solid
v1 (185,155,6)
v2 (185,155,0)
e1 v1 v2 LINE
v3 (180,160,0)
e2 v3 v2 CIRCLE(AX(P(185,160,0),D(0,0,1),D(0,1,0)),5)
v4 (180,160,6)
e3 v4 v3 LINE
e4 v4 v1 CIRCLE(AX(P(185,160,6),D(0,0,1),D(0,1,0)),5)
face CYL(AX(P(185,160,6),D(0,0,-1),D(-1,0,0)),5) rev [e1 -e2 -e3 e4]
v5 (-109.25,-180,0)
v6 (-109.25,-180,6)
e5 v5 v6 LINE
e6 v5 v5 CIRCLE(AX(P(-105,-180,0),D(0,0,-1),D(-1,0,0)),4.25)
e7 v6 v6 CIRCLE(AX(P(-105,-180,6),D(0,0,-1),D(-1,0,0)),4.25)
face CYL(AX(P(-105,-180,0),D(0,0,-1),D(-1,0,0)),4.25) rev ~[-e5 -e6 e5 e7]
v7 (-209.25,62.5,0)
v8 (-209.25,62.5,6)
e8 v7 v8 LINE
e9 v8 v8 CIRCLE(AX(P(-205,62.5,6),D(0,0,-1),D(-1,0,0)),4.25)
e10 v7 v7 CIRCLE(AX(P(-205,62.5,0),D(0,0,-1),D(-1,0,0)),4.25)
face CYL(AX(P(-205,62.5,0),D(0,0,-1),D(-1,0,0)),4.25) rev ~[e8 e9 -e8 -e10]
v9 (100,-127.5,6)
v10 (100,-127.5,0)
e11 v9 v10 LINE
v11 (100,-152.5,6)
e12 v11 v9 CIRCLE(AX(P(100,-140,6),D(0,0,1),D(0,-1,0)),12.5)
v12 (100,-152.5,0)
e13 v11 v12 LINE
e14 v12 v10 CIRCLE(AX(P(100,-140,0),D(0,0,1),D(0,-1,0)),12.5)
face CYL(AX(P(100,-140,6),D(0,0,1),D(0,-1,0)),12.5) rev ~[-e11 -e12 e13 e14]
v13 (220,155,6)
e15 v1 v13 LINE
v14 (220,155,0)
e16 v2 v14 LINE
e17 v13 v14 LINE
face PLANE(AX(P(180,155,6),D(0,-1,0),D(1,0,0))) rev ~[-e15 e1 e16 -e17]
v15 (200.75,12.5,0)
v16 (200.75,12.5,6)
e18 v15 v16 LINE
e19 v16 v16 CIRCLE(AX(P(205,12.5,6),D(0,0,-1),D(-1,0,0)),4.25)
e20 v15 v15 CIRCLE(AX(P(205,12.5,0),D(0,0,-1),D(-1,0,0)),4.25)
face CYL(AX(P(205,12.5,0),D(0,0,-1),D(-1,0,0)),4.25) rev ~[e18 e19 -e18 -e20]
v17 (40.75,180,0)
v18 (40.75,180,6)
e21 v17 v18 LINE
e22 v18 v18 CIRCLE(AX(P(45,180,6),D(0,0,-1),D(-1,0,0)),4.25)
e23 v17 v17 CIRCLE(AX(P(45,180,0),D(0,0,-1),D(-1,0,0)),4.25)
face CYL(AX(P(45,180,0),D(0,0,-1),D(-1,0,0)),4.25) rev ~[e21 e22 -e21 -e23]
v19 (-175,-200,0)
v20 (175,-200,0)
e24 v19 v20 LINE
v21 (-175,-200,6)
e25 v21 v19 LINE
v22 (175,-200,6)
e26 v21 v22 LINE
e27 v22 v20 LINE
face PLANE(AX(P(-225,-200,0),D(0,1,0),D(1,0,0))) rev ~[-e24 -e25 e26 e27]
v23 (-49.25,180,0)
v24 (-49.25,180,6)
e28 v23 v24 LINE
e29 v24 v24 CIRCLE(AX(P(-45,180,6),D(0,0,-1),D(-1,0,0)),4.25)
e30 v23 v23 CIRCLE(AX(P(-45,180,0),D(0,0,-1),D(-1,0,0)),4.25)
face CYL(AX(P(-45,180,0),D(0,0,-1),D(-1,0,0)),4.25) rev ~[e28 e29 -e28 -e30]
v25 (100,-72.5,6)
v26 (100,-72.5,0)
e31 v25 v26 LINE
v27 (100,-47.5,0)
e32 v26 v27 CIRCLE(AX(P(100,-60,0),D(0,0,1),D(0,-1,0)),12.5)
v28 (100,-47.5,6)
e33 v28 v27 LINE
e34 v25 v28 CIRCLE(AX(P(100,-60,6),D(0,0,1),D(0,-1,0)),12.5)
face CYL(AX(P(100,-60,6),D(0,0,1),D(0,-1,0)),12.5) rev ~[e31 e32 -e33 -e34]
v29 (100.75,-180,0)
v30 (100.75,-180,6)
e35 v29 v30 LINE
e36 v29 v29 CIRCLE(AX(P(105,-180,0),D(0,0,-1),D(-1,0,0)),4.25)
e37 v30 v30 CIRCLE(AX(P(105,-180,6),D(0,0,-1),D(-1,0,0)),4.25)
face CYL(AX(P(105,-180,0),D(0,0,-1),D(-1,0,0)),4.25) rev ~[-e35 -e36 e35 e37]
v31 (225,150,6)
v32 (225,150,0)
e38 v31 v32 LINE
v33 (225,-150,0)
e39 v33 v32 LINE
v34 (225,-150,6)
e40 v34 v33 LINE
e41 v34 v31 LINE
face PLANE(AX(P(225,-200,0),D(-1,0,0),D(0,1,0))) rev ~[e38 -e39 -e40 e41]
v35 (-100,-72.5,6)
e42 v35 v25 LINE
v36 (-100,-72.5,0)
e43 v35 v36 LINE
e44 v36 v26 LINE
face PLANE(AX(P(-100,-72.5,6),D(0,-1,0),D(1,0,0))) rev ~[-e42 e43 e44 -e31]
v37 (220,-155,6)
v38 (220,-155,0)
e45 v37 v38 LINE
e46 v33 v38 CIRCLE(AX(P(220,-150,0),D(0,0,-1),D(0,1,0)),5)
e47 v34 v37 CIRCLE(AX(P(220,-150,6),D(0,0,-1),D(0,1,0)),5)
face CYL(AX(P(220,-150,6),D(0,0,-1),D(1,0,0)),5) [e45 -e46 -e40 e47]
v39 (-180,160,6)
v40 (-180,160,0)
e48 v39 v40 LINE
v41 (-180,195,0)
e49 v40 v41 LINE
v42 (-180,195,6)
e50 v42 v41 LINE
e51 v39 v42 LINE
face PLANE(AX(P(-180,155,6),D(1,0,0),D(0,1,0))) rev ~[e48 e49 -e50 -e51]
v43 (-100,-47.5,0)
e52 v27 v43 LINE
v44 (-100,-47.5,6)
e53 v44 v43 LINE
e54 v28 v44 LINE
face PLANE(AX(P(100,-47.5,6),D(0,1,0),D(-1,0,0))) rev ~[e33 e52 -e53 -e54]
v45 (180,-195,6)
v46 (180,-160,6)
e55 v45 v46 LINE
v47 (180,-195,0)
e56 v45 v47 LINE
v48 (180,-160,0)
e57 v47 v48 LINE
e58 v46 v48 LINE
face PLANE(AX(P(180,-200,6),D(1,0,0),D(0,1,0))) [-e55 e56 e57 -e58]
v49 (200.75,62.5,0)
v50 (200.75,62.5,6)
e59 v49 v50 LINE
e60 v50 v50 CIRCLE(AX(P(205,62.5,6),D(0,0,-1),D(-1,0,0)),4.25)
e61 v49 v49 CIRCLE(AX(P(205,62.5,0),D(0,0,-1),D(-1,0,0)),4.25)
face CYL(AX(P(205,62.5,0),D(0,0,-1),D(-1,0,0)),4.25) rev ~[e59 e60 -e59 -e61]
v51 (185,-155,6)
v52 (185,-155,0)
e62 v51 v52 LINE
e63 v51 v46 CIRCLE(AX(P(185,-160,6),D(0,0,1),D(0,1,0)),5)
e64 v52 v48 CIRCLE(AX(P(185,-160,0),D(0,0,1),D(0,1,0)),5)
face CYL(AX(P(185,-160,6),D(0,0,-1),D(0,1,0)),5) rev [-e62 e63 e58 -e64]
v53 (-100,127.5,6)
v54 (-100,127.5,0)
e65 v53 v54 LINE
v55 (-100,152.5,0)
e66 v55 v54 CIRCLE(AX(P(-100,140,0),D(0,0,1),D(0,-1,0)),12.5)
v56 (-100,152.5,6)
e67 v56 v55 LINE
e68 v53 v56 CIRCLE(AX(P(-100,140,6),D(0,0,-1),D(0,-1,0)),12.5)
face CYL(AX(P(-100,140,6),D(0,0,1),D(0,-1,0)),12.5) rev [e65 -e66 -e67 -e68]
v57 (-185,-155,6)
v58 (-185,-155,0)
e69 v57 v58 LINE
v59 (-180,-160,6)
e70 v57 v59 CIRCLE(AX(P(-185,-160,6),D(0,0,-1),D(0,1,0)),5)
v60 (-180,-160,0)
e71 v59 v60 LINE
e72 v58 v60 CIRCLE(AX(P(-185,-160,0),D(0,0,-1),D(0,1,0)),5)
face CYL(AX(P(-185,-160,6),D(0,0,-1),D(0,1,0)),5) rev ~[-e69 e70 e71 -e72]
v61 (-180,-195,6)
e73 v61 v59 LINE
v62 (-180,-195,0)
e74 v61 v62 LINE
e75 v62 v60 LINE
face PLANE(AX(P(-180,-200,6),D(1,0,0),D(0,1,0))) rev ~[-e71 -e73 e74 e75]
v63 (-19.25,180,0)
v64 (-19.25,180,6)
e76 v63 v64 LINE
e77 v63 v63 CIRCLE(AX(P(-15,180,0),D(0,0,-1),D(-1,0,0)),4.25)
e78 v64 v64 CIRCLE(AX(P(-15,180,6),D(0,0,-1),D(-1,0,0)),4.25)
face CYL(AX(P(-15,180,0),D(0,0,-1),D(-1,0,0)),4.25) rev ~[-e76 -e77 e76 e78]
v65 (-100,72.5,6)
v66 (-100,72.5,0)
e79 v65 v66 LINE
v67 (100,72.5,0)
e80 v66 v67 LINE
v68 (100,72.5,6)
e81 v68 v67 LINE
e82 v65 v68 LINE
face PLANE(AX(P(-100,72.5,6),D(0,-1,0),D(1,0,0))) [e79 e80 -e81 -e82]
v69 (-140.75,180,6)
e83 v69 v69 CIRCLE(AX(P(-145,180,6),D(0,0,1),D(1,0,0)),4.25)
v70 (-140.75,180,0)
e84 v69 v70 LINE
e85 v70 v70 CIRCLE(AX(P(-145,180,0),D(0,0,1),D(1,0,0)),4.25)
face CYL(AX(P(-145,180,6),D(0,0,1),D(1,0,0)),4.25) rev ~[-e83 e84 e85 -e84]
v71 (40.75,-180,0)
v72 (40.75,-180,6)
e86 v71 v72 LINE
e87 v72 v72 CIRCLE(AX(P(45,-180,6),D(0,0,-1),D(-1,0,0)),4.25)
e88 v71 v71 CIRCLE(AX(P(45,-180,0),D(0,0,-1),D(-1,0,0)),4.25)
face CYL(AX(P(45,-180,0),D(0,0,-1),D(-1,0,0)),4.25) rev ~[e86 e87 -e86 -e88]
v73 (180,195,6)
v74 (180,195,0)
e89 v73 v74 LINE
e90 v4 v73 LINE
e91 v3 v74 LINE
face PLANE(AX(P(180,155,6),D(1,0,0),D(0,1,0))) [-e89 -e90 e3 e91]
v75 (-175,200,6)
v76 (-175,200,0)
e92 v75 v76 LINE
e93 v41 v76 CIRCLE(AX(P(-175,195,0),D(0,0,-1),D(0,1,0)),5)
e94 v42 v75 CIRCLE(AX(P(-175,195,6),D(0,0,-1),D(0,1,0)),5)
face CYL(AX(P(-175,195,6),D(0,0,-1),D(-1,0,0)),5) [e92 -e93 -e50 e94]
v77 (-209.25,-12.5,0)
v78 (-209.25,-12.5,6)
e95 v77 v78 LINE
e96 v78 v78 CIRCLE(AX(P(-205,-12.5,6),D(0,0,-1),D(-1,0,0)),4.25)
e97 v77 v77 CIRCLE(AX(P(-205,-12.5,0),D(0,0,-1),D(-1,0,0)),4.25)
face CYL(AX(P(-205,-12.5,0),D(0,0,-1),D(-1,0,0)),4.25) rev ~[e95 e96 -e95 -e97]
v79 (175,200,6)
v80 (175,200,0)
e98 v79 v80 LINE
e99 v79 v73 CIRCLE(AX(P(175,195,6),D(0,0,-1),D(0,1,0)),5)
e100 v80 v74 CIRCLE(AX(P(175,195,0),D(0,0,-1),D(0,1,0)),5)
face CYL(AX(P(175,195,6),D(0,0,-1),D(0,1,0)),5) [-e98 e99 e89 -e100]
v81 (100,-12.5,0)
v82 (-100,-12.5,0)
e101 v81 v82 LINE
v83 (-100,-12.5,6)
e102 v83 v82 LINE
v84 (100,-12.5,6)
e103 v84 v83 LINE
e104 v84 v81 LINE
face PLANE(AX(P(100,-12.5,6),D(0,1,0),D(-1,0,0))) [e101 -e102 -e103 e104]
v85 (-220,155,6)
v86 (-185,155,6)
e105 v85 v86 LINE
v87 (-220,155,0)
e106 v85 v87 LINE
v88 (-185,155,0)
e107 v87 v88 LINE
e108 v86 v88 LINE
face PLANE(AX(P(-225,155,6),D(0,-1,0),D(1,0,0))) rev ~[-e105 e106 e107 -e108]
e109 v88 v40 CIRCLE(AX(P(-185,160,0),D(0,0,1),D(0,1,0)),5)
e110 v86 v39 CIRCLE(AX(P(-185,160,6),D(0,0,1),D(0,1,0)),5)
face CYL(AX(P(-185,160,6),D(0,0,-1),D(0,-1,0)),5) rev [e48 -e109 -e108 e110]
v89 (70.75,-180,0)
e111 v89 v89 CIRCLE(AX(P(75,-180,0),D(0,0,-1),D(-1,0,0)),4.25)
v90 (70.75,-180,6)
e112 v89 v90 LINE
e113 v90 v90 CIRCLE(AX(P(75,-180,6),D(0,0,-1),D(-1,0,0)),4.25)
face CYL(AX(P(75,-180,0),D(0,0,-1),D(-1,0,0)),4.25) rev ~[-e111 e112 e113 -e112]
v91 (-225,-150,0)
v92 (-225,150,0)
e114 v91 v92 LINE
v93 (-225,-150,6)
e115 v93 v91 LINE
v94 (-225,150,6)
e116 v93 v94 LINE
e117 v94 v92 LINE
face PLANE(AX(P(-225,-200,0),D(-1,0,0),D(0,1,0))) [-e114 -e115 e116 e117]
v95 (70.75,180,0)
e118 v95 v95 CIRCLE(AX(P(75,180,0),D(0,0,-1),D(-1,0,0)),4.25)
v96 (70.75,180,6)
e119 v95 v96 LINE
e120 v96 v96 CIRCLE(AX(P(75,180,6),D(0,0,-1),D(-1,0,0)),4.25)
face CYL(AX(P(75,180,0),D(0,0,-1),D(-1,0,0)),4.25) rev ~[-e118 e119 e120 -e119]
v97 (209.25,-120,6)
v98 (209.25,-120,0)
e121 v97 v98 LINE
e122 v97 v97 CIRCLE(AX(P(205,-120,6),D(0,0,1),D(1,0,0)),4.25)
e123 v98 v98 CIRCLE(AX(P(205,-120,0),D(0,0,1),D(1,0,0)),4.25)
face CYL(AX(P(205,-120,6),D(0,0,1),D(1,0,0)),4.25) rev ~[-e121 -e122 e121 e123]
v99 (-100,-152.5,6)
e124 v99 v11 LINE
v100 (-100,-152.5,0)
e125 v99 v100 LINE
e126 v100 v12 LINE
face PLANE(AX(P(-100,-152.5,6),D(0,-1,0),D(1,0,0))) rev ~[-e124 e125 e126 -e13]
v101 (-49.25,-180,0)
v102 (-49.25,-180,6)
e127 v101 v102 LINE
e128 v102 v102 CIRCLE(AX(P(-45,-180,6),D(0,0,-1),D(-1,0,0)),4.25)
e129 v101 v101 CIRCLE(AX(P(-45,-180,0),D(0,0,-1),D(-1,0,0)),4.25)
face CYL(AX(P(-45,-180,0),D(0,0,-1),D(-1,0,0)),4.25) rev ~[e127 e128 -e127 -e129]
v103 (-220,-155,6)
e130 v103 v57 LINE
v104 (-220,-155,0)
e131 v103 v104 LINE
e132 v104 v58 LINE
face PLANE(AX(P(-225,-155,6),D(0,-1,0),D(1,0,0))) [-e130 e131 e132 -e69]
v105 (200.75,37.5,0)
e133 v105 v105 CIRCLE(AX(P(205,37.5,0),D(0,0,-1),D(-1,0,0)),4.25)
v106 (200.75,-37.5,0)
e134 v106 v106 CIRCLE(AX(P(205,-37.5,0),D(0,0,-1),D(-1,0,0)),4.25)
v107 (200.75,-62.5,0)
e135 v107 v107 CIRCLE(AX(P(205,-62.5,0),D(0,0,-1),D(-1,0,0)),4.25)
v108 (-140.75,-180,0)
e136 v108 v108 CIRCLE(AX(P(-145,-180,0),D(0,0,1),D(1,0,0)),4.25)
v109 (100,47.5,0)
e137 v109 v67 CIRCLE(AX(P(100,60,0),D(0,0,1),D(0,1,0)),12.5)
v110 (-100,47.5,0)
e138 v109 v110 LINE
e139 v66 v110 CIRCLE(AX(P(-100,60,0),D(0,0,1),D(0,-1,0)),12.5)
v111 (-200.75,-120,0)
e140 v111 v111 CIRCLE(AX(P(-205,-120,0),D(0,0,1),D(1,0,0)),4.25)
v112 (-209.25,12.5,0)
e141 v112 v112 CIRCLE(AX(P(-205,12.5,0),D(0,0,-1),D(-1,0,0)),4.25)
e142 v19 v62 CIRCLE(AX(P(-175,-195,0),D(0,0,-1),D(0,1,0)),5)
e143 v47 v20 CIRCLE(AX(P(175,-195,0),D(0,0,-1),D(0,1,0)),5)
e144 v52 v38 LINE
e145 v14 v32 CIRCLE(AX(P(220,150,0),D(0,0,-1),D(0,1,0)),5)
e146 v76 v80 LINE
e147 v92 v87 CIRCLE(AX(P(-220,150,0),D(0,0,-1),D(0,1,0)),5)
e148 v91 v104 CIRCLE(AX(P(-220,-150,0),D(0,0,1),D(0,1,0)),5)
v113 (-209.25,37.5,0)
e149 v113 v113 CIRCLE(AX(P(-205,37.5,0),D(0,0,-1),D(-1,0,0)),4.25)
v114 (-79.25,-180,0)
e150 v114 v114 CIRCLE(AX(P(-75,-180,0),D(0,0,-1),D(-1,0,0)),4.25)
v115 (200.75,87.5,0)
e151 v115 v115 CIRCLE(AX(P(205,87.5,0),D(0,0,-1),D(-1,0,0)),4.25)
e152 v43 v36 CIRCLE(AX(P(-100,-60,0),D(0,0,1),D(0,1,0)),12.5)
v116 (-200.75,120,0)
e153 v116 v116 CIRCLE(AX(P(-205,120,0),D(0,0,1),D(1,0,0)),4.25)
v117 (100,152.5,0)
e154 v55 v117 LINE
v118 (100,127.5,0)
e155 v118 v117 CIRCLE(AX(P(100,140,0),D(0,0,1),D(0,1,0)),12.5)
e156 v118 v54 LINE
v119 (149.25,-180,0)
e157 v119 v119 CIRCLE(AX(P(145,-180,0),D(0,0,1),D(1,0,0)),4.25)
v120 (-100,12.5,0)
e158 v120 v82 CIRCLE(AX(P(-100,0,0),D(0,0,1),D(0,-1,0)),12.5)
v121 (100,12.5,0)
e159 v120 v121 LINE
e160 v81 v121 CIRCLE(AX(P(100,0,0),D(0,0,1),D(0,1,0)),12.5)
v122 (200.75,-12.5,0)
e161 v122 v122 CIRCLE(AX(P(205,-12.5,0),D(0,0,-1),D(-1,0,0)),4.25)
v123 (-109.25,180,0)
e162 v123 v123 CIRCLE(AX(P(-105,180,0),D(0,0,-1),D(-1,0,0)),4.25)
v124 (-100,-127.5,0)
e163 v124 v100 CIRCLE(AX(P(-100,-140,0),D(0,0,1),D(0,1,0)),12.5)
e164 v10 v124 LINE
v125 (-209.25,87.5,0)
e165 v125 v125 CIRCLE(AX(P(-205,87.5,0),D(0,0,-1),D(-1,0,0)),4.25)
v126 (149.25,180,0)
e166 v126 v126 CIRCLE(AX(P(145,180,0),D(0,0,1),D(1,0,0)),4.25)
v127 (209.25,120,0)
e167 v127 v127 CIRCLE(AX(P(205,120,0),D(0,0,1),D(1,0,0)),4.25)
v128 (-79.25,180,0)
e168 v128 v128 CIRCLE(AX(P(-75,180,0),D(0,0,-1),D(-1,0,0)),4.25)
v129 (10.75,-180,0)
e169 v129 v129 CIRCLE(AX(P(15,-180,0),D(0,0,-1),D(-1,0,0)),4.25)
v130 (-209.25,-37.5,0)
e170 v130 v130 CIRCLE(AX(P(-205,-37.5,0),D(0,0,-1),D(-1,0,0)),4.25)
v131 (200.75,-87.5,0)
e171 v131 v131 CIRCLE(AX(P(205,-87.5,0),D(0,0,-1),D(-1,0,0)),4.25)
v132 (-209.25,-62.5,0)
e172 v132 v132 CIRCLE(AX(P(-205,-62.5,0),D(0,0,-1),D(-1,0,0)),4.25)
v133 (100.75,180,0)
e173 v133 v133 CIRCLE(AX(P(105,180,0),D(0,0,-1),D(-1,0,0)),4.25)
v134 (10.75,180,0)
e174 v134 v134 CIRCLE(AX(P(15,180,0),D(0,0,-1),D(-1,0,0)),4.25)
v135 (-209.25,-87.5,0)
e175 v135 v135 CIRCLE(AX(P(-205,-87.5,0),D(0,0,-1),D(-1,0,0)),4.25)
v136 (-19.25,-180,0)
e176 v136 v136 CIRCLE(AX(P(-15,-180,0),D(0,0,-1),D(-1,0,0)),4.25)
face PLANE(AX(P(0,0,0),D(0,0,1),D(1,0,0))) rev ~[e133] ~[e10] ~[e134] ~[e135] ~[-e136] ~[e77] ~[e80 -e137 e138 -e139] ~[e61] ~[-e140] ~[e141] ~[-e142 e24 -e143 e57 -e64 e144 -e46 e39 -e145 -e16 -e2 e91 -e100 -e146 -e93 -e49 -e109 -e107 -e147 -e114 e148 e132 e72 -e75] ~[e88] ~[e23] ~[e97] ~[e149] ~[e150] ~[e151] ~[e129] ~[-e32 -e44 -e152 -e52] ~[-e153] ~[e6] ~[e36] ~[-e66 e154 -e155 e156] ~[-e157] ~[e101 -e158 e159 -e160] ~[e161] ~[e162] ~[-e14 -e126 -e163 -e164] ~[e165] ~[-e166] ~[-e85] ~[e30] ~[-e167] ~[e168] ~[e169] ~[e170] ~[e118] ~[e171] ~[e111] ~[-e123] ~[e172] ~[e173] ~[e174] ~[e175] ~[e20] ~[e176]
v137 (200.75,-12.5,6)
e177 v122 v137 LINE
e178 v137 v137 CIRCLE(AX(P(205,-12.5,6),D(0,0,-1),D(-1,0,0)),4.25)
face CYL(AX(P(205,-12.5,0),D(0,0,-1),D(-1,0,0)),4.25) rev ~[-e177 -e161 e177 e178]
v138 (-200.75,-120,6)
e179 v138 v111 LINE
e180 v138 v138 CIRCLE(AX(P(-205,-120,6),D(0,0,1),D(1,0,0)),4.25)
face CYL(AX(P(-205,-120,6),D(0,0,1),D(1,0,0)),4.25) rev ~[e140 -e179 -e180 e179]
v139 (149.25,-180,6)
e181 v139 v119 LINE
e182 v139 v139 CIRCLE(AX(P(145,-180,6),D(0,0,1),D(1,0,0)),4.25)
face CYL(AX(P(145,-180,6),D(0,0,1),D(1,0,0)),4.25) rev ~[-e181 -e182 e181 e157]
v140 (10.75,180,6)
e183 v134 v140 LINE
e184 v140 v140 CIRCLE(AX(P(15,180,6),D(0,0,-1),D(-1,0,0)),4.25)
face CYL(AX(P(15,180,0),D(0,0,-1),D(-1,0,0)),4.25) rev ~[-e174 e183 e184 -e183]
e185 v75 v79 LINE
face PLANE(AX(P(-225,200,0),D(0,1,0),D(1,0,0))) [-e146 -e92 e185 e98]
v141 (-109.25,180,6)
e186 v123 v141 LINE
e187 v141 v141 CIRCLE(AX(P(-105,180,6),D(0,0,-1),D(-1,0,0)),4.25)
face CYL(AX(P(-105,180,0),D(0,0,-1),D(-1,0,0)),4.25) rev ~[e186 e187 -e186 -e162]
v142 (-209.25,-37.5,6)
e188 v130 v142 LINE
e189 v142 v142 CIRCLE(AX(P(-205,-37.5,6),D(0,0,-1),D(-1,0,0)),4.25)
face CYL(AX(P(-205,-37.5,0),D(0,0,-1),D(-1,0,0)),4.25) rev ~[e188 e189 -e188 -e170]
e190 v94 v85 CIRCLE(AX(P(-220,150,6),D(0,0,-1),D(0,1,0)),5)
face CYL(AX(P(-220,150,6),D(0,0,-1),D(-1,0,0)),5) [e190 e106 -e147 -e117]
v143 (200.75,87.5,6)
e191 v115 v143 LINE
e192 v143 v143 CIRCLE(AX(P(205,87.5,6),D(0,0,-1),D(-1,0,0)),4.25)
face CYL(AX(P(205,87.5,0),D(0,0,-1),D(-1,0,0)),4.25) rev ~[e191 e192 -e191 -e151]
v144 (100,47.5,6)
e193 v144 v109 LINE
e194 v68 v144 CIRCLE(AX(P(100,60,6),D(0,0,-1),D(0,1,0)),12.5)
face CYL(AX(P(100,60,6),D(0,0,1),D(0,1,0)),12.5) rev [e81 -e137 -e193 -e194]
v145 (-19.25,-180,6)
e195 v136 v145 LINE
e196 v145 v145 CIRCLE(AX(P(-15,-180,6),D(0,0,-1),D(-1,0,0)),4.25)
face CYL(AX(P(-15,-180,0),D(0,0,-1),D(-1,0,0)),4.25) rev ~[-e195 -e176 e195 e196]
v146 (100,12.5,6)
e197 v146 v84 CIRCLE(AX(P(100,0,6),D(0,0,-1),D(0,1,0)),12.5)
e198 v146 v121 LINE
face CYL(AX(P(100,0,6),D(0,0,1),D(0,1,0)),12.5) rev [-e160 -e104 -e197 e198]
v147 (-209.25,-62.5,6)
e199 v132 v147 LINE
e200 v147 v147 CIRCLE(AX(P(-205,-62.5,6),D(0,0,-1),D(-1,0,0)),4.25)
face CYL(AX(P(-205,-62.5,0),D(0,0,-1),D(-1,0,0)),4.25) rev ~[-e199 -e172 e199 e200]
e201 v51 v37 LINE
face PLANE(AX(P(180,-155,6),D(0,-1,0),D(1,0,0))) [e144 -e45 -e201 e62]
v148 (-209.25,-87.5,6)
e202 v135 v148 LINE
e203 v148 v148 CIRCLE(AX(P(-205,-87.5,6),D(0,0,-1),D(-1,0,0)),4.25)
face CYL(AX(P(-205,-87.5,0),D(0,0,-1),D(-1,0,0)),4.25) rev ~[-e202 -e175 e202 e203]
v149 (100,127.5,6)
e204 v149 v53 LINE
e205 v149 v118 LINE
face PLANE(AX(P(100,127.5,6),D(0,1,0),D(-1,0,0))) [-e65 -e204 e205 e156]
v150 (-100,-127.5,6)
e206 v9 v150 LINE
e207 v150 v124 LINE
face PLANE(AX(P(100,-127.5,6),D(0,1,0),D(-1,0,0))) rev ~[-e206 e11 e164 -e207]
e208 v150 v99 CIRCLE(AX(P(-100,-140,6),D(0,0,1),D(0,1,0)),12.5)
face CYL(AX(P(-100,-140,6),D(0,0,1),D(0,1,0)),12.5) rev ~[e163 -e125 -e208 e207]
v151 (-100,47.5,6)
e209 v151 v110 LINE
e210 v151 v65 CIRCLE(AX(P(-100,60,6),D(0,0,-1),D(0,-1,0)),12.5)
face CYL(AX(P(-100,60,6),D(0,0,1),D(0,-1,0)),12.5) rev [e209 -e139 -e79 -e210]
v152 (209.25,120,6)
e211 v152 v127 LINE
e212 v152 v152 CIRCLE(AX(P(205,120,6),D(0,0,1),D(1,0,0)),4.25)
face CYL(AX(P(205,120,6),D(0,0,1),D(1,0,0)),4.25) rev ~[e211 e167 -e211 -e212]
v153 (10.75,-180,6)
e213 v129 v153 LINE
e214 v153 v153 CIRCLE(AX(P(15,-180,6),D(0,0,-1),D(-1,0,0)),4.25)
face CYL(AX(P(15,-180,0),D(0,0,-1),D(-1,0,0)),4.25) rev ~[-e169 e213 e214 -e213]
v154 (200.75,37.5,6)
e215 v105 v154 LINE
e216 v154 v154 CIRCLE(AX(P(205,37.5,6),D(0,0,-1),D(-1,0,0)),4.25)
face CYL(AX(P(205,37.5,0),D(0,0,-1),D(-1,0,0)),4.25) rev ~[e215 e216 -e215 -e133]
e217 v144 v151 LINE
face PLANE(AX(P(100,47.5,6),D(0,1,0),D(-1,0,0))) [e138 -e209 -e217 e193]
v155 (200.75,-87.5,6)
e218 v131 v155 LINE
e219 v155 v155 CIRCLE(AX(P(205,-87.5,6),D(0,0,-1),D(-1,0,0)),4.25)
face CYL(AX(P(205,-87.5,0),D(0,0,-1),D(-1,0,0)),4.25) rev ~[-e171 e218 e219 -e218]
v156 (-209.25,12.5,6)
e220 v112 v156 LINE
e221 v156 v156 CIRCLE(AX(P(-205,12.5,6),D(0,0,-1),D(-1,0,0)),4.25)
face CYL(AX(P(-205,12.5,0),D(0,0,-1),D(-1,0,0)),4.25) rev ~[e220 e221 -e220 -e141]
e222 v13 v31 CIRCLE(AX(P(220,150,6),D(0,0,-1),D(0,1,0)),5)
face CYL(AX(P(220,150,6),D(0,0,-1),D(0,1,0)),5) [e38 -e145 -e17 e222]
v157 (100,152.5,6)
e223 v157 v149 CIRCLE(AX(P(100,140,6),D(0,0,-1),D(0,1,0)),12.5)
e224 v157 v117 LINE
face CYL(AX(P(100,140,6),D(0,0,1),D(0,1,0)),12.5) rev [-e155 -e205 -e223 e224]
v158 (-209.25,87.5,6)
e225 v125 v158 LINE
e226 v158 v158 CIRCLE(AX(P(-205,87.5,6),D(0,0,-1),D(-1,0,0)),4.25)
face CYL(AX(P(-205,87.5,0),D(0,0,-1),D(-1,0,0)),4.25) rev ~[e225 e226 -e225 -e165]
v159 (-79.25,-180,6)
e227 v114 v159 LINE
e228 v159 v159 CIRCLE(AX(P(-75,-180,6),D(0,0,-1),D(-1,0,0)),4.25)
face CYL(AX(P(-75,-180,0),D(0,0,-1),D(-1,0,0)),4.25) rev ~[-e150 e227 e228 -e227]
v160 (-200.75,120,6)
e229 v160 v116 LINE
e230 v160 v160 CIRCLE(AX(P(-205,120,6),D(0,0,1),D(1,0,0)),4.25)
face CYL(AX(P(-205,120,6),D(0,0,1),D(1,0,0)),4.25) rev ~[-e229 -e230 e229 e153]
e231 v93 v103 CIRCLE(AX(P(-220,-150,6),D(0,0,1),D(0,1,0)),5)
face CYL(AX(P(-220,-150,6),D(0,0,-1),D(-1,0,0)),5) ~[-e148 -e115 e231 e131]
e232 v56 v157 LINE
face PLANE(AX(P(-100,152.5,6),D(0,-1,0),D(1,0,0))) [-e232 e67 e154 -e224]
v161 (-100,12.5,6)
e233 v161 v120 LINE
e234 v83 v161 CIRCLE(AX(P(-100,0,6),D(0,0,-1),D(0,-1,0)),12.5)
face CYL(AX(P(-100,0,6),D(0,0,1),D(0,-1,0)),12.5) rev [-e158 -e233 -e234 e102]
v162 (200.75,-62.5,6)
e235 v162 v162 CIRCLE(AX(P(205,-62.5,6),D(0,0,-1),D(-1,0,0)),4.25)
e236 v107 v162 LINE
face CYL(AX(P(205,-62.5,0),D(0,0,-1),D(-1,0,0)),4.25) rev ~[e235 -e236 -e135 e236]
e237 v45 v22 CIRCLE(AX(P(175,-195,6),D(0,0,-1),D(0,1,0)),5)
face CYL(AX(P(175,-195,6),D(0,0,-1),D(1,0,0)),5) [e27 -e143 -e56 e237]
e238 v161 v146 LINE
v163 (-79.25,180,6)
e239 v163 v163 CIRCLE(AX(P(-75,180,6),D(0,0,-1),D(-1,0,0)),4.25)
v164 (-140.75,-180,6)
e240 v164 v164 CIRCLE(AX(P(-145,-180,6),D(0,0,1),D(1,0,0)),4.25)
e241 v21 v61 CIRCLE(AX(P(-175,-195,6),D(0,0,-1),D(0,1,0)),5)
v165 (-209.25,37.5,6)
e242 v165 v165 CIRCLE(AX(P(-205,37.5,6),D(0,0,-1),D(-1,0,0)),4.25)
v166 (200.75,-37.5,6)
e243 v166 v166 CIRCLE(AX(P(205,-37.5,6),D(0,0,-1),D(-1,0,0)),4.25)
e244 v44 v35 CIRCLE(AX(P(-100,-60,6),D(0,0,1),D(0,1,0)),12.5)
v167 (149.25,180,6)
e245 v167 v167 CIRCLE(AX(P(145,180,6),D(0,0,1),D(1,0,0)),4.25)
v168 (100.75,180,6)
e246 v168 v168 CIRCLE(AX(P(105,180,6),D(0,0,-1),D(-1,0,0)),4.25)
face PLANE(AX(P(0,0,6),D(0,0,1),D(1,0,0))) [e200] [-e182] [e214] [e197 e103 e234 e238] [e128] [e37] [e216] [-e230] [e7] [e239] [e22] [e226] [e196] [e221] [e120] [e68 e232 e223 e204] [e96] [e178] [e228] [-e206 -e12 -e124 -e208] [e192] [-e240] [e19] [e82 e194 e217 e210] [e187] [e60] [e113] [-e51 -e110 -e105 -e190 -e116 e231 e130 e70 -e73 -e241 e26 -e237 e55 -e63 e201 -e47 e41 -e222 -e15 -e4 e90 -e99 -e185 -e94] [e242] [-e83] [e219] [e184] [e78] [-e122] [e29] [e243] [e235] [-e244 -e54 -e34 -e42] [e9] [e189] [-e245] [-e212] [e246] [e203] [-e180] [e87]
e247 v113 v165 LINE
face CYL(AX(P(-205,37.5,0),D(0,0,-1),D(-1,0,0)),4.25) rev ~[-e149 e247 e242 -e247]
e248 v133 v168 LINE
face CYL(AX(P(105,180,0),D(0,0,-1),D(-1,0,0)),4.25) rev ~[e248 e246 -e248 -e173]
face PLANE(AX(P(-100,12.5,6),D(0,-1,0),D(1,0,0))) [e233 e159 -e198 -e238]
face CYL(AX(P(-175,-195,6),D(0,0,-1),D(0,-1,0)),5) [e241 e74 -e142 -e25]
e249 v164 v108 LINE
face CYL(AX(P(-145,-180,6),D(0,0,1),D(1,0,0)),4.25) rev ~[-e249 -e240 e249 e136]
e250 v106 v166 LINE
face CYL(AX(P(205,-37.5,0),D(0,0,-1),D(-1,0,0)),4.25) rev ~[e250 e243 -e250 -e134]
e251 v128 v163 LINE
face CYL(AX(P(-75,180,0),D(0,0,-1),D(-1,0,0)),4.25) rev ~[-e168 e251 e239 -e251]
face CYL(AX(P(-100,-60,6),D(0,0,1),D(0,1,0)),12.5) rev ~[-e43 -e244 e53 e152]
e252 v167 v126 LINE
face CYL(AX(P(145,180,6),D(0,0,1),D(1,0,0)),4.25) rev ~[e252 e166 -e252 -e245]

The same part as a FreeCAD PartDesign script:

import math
import FreeCAD as App
import Part
import Sketcher

V = App.Vector


def edges_at(feature, points):
    """Names of the edges that pass closest to the given points."""
    edges = feature.Shape.Edges
    near = lambda p: min(range(len(edges)), key=lambda i: edges[i].distToShape(Part.Vertex(*p))[0])
    return sorted({f"Edge{near(p) + 1}" for p in points})

doc = App.newDocument("Part")
params = doc.addObject("Spreadsheet::Sheet", "Params")
for row, (alias, value) in enumerate([
    ("sketch1_width", "450 mm"),
    ("sketch1_height", "400 mm"),
    ("pad1_length", "6 mm"),
    ("sketch2_diameter", "7.5 mm"),
    ("sketch2_diameter2", "8.5 mm"),
    ("pocket1_length", "50 mm"),
    ("sketch3_radius", "12.5 mm"),
    ("sketch3_width", "200 mm"),
    ("pocket2_length", "50 mm"),
    ("sketch4_width", "45 mm"),
    ("pocket3_length", "56 mm"),
    ("fillet_radius", "5 mm"),
    ("sketch5_diameter", "8.5 mm"),
    ("pocket4_length", "90 mm"),
], start=1):
    params.set(f"A{row}", alias)
    params.set(f"B{row}", "=" + value)
    params.setAlias(f"B{row}", alias)

body = doc.addObject("PartDesign::Body", "Body")

# Sketch on XY plane
sketch1 = body.newObject("Sketcher::SketchObject", "Sketch")
sketch1.AttachmentSupport = (doc.getObject("XY_Plane"), [""])
sketch1.MapMode = "FlatFace"
sketch1.addGeometry(Part.LineSegment(V(-225, 200, 0), V(-225, -200, 0)), False)
sketch1.addGeometry(Part.LineSegment(V(-225, -200, 0), V(225, -200, 0)), False)
sketch1.addGeometry(Part.LineSegment(V(225, -200, 0), V(225, 200, 0)), False)
sketch1.addGeometry(Part.LineSegment(V(225, 200, 0), V(-225, 200, 0)), False)
sketch1.addConstraint(Sketcher.Constraint("Coincident", 0, 2, 1, 1))
sketch1.addConstraint(Sketcher.Constraint("Coincident", 1, 2, 2, 1))
sketch1.addConstraint(Sketcher.Constraint("Coincident", 2, 2, 3, 1))
sketch1.addConstraint(Sketcher.Constraint("Coincident", 3, 2, 0, 1))
sketch1.addConstraint(Sketcher.Constraint("Vertical", 0))
sketch1.addConstraint(Sketcher.Constraint("Horizontal", 1))
sketch1.addConstraint(Sketcher.Constraint("Vertical", 2))
sketch1.addConstraint(Sketcher.Constraint("Horizontal", 3))
sketch1.addConstraint(Sketcher.Constraint("Symmetric", 0, 2, 2, 2, -1, 1))
sketch1.addConstraint(Sketcher.Constraint("DistanceX", 1, 1, 1, 2, 450.0))
sketch1.addConstraint(Sketcher.Constraint("DistanceY", 0, 2, 0, 1, 400.0))
sketch1.setExpression("Constraints[9]", "Params.sketch1_width")
sketch1.setExpression("Constraints[10]", "Params.sketch1_height")
pad1 = body.newObject("PartDesign::Pad", "Pad")
pad1.Profile = sketch1
pad1.setExpression("Length", "Params.pad1_length")

# Sketch on XY plane
sketch2 = body.newObject("Sketcher::SketchObject", "Sketch001")
sketch2.AttachmentSupport = (doc.getObject("XY_Plane"), [""])
sketch2.MapMode = "FlatFace"
sketch2.AttachmentOffset = App.Placement(V(0, 0, 6), App.Rotation())
sketch2.addGeometry(Part.Circle(V(205, -180, 0), V(0, 0, 1), 3.75), False)
sketch2.addGeometry(Part.Circle(V(205, -120, 0), V(0, 0, 1), 4.25), False)
sketch2.addGeometry(Part.Circle(V(145, -180, 0), V(0, 0, 1), 4.25), False)
sketch2.addGeometry(Part.Circle(V(145, 180, 0), V(0, 0, 1), 4.25), False)
sketch2.addGeometry(Part.Circle(V(205, 120, 0), V(0, 0, 1), 4.25), False)
sketch2.addGeometry(Part.Circle(V(205, 180, 0), V(0, 0, 1), 3.75), False)
sketch2.addGeometry(Part.Circle(V(-205, 180, 0), V(0, 0, 1), 3.75), False)
sketch2.addGeometry(Part.Circle(V(-205, 120, 0), V(0, 0, 1), 4.25), False)
sketch2.addGeometry(Part.Circle(V(-145, 180, 0), V(0, 0, 1), 4.25), False)
sketch2.addGeometry(Part.Circle(V(-145, -180, 0), V(0, 0, 1), 4.25), False)
sketch2.addGeometry(Part.Circle(V(-205, -120, 0), V(0, 0, 1), 4.25), False)
sketch2.addGeometry(Part.Circle(V(-205, -180, 0), V(0, 0, 1), 3.75), False)
sketch2.addConstraint(Sketcher.Constraint("Equal", 1, 2))
sketch2.addConstraint(Sketcher.Constraint("Equal", 2, 3))
sketch2.addConstraint(Sketcher.Constraint("Equal", 3, 4))
sketch2.addConstraint(Sketcher.Constraint("Equal", 0, 5))
sketch2.addConstraint(Sketcher.Constraint("Equal", 5, 6))
sketch2.addConstraint(Sketcher.Constraint("Equal", 4, 7))
sketch2.addConstraint(Sketcher.Constraint("Equal", 7, 8))
sketch2.addConstraint(Sketcher.Constraint("Equal", 8, 9))
sketch2.addConstraint(Sketcher.Constraint("Equal", 9, 10))
sketch2.addConstraint(Sketcher.Constraint("Equal", 6, 11))
sketch2.addConstraint(Sketcher.Constraint("Symmetric", 0, 3, 6, 3, -1, 1))
sketch2.addConstraint(Sketcher.Constraint("Symmetric", 1, 3, 7, 3, -1, 1))
sketch2.addConstraint(Sketcher.Constraint("Symmetric", 2, 3, 8, 3, -1, 1))
sketch2.addConstraint(Sketcher.Constraint("Symmetric", 3, 3, 9, 3, -1, 1))
sketch2.addConstraint(Sketcher.Constraint("Symmetric", 4, 3, 10, 3, -1, 1))
sketch2.addConstraint(Sketcher.Constraint("Symmetric", 5, 3, 11, 3, -1, 1))
sketch2.addConstraint(Sketcher.Constraint("Symmetric", 5, 3, 6, 3, -2))
sketch2.addConstraint(Sketcher.Constraint("Symmetric", 4, 3, 7, 3, -2))
sketch2.addConstraint(Sketcher.Constraint("Symmetric", 3, 3, 8, 3, -2))
sketch2.addConstraint(Sketcher.Constraint("Horizontal", 0, 3, 2, 3))
sketch2.addConstraint(Sketcher.Constraint("Vertical", 0, 3, 1, 3))
sketch2.addConstraint(Sketcher.Constraint("Diameter", 0, 7.5))
sketch2.addConstraint(Sketcher.Constraint("Diameter", 1, 8.5))
sketch2.addConstraint(Sketcher.Constraint("DistanceX", -1, 1, 0, 3, 205.0))
sketch2.addConstraint(Sketcher.Constraint("DistanceY", 0, 3, -1, 1, 180.0))
sketch2.addConstraint(Sketcher.Constraint("DistanceY", 1, 3, -1, 1, 120.0))
sketch2.addConstraint(Sketcher.Constraint("DistanceX", -1, 1, 2, 3, 145.0))
sketch2.setExpression("Constraints[21]", "Params.sketch2_diameter")
sketch2.setExpression("Constraints[22]", "Params.sketch2_diameter2")
pocket1 = body.newObject("PartDesign::Pocket", "Pocket")
pocket1.Profile = sketch2
pocket1.setExpression("Length", "Params.pocket1_length")

# Sketch on XY plane
sketch3 = body.newObject("Sketcher::SketchObject", "Sketch002")
sketch3.AttachmentSupport = (doc.getObject("XY_Plane"), [""])
sketch3.MapMode = "FlatFace"
sketch3.AttachmentOffset = App.Placement(V(0, 0, 6), App.Rotation())
sketch3.addGeometry(Part.LineSegment(V(-100, -12.5, 0), V(100, -12.5, 0)), False)
sketch3.addGeometry(Part.ArcOfCircle(Part.Circle(V(100, 0, 0), V(0, 0, 1), 12.5), math.radians(-90), math.radians(90)), False)
sketch3.addGeometry(Part.LineSegment(V(100, 12.5, 0), V(-100, 12.5, 0)), False)
sketch3.addGeometry(Part.ArcOfCircle(Part.Circle(V(-100, 0, 0), V(0, 0, 1), 12.5), math.radians(90), math.radians(270)), False)
sketch3.addGeometry(Part.LineSegment(V(-100, 47.5, 0), V(100, 47.5, 0)), False)
sketch3.addGeometry(Part.ArcOfCircle(Part.Circle(V(100, 60, 0), V(0, 0, 1), 12.5), math.radians(-90), math.radians(90)), False)
sketch3.addGeometry(Part.LineSegment(V(100, 72.5, 0), V(-100, 72.5, 0)), False)
sketch3.addGeometry(Part.ArcOfCircle(Part.Circle(V(-100, 60, 0), V(0, 0, 1), 12.5), math.radians(90), math.radians(270)), False)
sketch3.addGeometry(Part.LineSegment(V(100, -47.5, 0), V(-100, -47.5, 0)), False)
sketch3.addGeometry(Part.ArcOfCircle(Part.Circle(V(-100, -60, 0), V(0, 0, 1), 12.5), math.radians(90), math.radians(270)), False)
sketch3.addGeometry(Part.LineSegment(V(-100, -72.5, 0), V(100, -72.5, 0)), False)
sketch3.addGeometry(Part.ArcOfCircle(Part.Circle(V(100, -60, 0), V(0, 0, 1), 12.5), math.radians(-90), math.radians(90)), False)
sketch3.addGeometry(Part.LineSegment(V(-100, 127.5, 0), V(100, 127.5, 0)), False)
sketch3.addGeometry(Part.ArcOfCircle(Part.Circle(V(100, 140, 0), V(0, 0, 1), 12.5), math.radians(-90), math.radians(90)), False)
sketch3.addGeometry(Part.LineSegment(V(100, 152.5, 0), V(-100, 152.5, 0)), False)
sketch3.addGeometry(Part.ArcOfCircle(Part.Circle(V(-100, 140, 0), V(0, 0, 1), 12.5), math.radians(90), math.radians(270)), False)
sketch3.addGeometry(Part.LineSegment(V(100, -127.5, 0), V(-100, -127.5, 0)), False)
sketch3.addGeometry(Part.ArcOfCircle(Part.Circle(V(-100, -140, 0), V(0, 0, 1), 12.5), math.radians(90), math.radians(270)), False)
sketch3.addGeometry(Part.LineSegment(V(-100, -152.5, 0), V(100, -152.5, 0)), False)
sketch3.addGeometry(Part.ArcOfCircle(Part.Circle(V(100, -140, 0), V(0, 0, 1), 12.5), math.radians(-90), math.radians(90)), False)
sketch3.addConstraint(Sketcher.Constraint("Tangent", 0, 2, 1, 1))
sketch3.addConstraint(Sketcher.Constraint("Tangent", 1, 2, 2, 1))
sketch3.addConstraint(Sketcher.Constraint("Tangent", 2, 2, 3, 1))
sketch3.addConstraint(Sketcher.Constraint("Tangent", 3, 2, 0, 1))
sketch3.addConstraint(Sketcher.Constraint("Tangent", 4, 2, 5, 1))
sketch3.addConstraint(Sketcher.Constraint("Tangent", 5, 2, 6, 1))
sketch3.addConstraint(Sketcher.Constraint("Tangent", 6, 2, 7, 1))
sketch3.addConstraint(Sketcher.Constraint("Tangent", 7, 2, 4, 1))
sketch3.addConstraint(Sketcher.Constraint("Tangent", 8, 2, 9, 1))
sketch3.addConstraint(Sketcher.Constraint("Tangent", 9, 2, 10, 1))
sketch3.addConstraint(Sketcher.Constraint("Tangent", 10, 2, 11, 1))
sketch3.addConstraint(Sketcher.Constraint("Tangent", 11, 2, 8, 1))
sketch3.addConstraint(Sketcher.Constraint("Tangent", 12, 2, 13, 1))
sketch3.addConstraint(Sketcher.Constraint("Tangent", 13, 2, 14, 1))
sketch3.addConstraint(Sketcher.Constraint("Tangent", 14, 2, 15, 1))
sketch3.addConstraint(Sketcher.Constraint("Tangent", 15, 2, 12, 1))
sketch3.addConstraint(Sketcher.Constraint("Tangent", 16, 2, 17, 1))
sketch3.addConstraint(Sketcher.Constraint("Tangent", 17, 2, 18, 1))
sketch3.addConstraint(Sketcher.Constraint("Tangent", 18, 2, 19, 1))
sketch3.addConstraint(Sketcher.Constraint("Tangent", 19, 2, 16, 1))
sketch3.addConstraint(Sketcher.Constraint("Horizontal", 0))
sketch3.addConstraint(Sketcher.Constraint("Horizontal", 2))
sketch3.addConstraint(Sketcher.Constraint("Horizontal", 4))
sketch3.addConstraint(Sketcher.Constraint("Horizontal", 6))
sketch3.addConstraint(Sketcher.Constraint("Horizontal", 8))
sketch3.addConstraint(Sketcher.Constraint("Horizontal", 10))
sketch3.addConstraint(Sketcher.Constraint("Horizontal", 12))
sketch3.addConstraint(Sketcher.Constraint("Horizontal", 14))
sketch3.addConstraint(Sketcher.Constraint("Horizontal", 16))
sketch3.addConstraint(Sketcher.Constraint("Horizontal", 18))
sketch3.addConstraint(Sketcher.Constraint("Equal", 3, 5))
sketch3.addConstraint(Sketcher.Constraint("Equal", 7, 9))
sketch3.addConstraint(Sketcher.Constraint("Equal", 11, 13))
sketch3.addConstraint(Sketcher.Constraint("Equal", 15, 17))
sketch3.addConstraint(Sketcher.Constraint("Symmetric", 1, 3, 3, 3, -1, 1))
sketch3.addConstraint(Sketcher.Constraint("Symmetric", 5, 3, 9, 3, -1, 1))
sketch3.addConstraint(Sketcher.Constraint("Symmetric", 13, 3, 17, 3, -1, 1))
sketch3.addConstraint(Sketcher.Constraint("Vertical", 1, 3, 5, 3))
sketch3.addConstraint(Sketcher.Constraint("Vertical", 3, 3, 7, 3))
sketch3.addConstraint(Sketcher.Constraint("Vertical", 5, 3, 11, 3))
sketch3.addConstraint(Sketcher.Constraint("Vertical", 11, 3, 13, 3))
sketch3.addConstraint(Sketcher.Constraint("Vertical", 9, 3, 15, 3))
sketch3.addConstraint(Sketcher.Constraint("Vertical", 13, 3, 19, 3))
sketch3.addConstraint(Sketcher.Constraint("Radius", 1, 12.5))
sketch3.addConstraint(Sketcher.Constraint("DistanceX", 0, 1, 0, 2, 200.0))
sketch3.addConstraint(Sketcher.Constraint("DistanceY", -1, 1, 5, 3, 60.0))
sketch3.addConstraint(Sketcher.Constraint("DistanceY", -1, 1, 13, 3, 140.0))
sketch3.setExpression("Constraints[43]", "Params.sketch3_radius")
sketch3.setExpression("Constraints[44]", "Params.sketch3_width")
pocket2 = body.newObject("PartDesign::Pocket", "Pocket001")
pocket2.Profile = sketch3
pocket2.setExpression("Length", "Params.pocket2_length")

# Sketch on XY plane
sketch4 = body.newObject("Sketcher::SketchObject", "Sketch003")
sketch4.AttachmentSupport = (doc.getObject("XY_Plane"), [""])
sketch4.MapMode = "FlatFace"
sketch4.AttachmentOffset = App.Placement(V(0, 0, 6), App.Rotation())
sketch4.addGeometry(Part.LineSegment(V(180, -155, 0), V(180, -200, 0)), False)
sketch4.addGeometry(Part.LineSegment(V(180, -200, 0), V(225, -200, 0)), False)
sketch4.addGeometry(Part.LineSegment(V(225, -200, 0), V(225, -155, 0)), False)
sketch4.addGeometry(Part.LineSegment(V(225, -155, 0), V(180, -155, 0)), False)
sketch4.addGeometry(Part.LineSegment(V(-225, -155, 0), V(-225, -200, 0)), False)
sketch4.addGeometry(Part.LineSegment(V(-225, -200, 0), V(-180, -200, 0)), False)
sketch4.addGeometry(Part.LineSegment(V(-180, -200, 0), V(-180, -155, 0)), False)
sketch4.addGeometry(Part.LineSegment(V(-180, -155, 0), V(-225, -155, 0)), False)
sketch4.addGeometry(Part.LineSegment(V(-225, 200, 0), V(-225, 155, 0)), False)
sketch4.addGeometry(Part.LineSegment(V(-225, 155, 0), V(-180, 155, 0)), False)
sketch4.addGeometry(Part.LineSegment(V(-180, 155, 0), V(-180, 200, 0)), False)
sketch4.addGeometry(Part.LineSegment(V(-180, 200, 0), V(-225, 200, 0)), False)
sketch4.addGeometry(Part.LineSegment(V(180, 200, 0), V(180, 155, 0)), False)
sketch4.addGeometry(Part.LineSegment(V(180, 155, 0), V(225, 155, 0)), False)
sketch4.addGeometry(Part.LineSegment(V(225, 155, 0), V(225, 200, 0)), False)
sketch4.addGeometry(Part.LineSegment(V(225, 200, 0), V(180, 200, 0)), False)
sketch4.addConstraint(Sketcher.Constraint("Coincident", 0, 2, 1, 1))
sketch4.addConstraint(Sketcher.Constraint("Coincident", 1, 2, 2, 1))
sketch4.addConstraint(Sketcher.Constraint("Coincident", 2, 2, 3, 1))
sketch4.addConstraint(Sketcher.Constraint("Coincident", 3, 2, 0, 1))
sketch4.addConstraint(Sketcher.Constraint("Coincident", 4, 2, 5, 1))
sketch4.addConstraint(Sketcher.Constraint("Coincident", 5, 2, 6, 1))
sketch4.addConstraint(Sketcher.Constraint("Coincident", 6, 2, 7, 1))
sketch4.addConstraint(Sketcher.Constraint("Coincident", 7, 2, 4, 1))
sketch4.addConstraint(Sketcher.Constraint("Coincident", 8, 2, 9, 1))
sketch4.addConstraint(Sketcher.Constraint("Coincident", 9, 2, 10, 1))
sketch4.addConstraint(Sketcher.Constraint("Coincident", 10, 2, 11, 1))
sketch4.addConstraint(Sketcher.Constraint("Coincident", 11, 2, 8, 1))
sketch4.addConstraint(Sketcher.Constraint("Coincident", 12, 2, 13, 1))
sketch4.addConstraint(Sketcher.Constraint("Coincident", 13, 2, 14, 1))
sketch4.addConstraint(Sketcher.Constraint("Coincident", 14, 2, 15, 1))
sketch4.addConstraint(Sketcher.Constraint("Coincident", 15, 2, 12, 1))
sketch4.addConstraint(Sketcher.Constraint("Vertical", 0))
sketch4.addConstraint(Sketcher.Constraint("Horizontal", 1))
sketch4.addConstraint(Sketcher.Constraint("Vertical", 2))
sketch4.addConstraint(Sketcher.Constraint("Horizontal", 3))
sketch4.addConstraint(Sketcher.Constraint("Vertical", 4))
sketch4.addConstraint(Sketcher.Constraint("Horizontal", 5))
sketch4.addConstraint(Sketcher.Constraint("Vertical", 6))
sketch4.addConstraint(Sketcher.Constraint("Horizontal", 7))
sketch4.addConstraint(Sketcher.Constraint("Vertical", 8))
sketch4.addConstraint(Sketcher.Constraint("Horizontal", 9))
sketch4.addConstraint(Sketcher.Constraint("Vertical", 10))
sketch4.addConstraint(Sketcher.Constraint("Horizontal", 11))
sketch4.addConstraint(Sketcher.Constraint("Vertical", 12))
sketch4.addConstraint(Sketcher.Constraint("Horizontal", 13))
sketch4.addConstraint(Sketcher.Constraint("Vertical", 14))
sketch4.addConstraint(Sketcher.Constraint("Horizontal", 15))
sketch4.addConstraint(Sketcher.Constraint("Symmetric", 2, 2, 8, 2, -1, 1))
sketch4.addConstraint(Sketcher.Constraint("Symmetric", 0, 2, 10, 2, -1, 1))
sketch4.addConstraint(Sketcher.Constraint("Symmetric", 6, 2, 12, 2, -1, 1))
sketch4.addConstraint(Sketcher.Constraint("Symmetric", 4, 2, 14, 2, -1, 1))
sketch4.addConstraint(Sketcher.Constraint("Symmetric", 1, 2, 4, 2, -2))
sketch4.addConstraint(Sketcher.Constraint("Symmetric", 3, 2, 6, 2, -2))
sketch4.addConstraint(Sketcher.Constraint("Equal", 15, 0))
sketch4.addConstraint(Sketcher.Constraint("DistanceX", 1, 1, 1, 2, 45.0))
sketch4.addConstraint(Sketcher.Constraint("DistanceX", -1, 1, 0, 2, 180.0))
sketch4.addConstraint(Sketcher.Constraint("DistanceY", 0, 2, -1, 1, 200.0))
sketch4.setExpression("Constraints[39]", "Params.sketch4_width")
pocket3 = body.newObject("PartDesign::Pocket", "Pocket002")
pocket3.Profile = sketch4
pocket3.setExpression("Length", "Params.pocket3_length")
doc.recompute()

fillet = body.newObject("PartDesign::Fillet", "Fillet")
fillet.Base = (pocket3, edges_at(pocket3, [
    (180, 200, 3),
    (225, 155, 3),
    (180, 155, 3),
    (-225, 155, 3),
    (-180, 200, 3),
    (-180, 155, 3),
    (-180, -200, 3),
    (-225, -155, 3),
    (-180, -155, 3),
    (225, -155, 3),
    (180, -200, 3),
    (180, -155, 3),
]))
fillet.setExpression("Radius", "Params.fillet_radius")

# Sketch on XY plane
sketch5 = body.newObject("Sketcher::SketchObject", "Sketch004")
sketch5.AttachmentSupport = (doc.getObject("XY_Plane"), [""])
sketch5.MapMode = "FlatFace"
sketch5.addGeometry(Part.Circle(V(-15, -180, 0), V(0, 0, 1), 4.25), False)
sketch5.addGeometry(Part.Circle(V(-45, -180, 0), V(0, 0, 1), 4.25), False)
sketch5.addGeometry(Part.Circle(V(-75, -180, 0), V(0, 0, 1), 4.25), False)
sketch5.addGeometry(Part.Circle(V(-105, -180, 0), V(0, 0, 1), 4.25), False)
sketch5.addGeometry(Part.Circle(V(105, -180, 0), V(0, 0, 1), 4.25), False)
sketch5.addGeometry(Part.Circle(V(75, -180, 0), V(0, 0, 1), 4.25), False)
sketch5.addGeometry(Part.Circle(V(45, -180, 0), V(0, 0, 1), 4.25), False)
sketch5.addGeometry(Part.Circle(V(15, -180, 0), V(0, 0, 1), 4.25), False)
sketch5.addGeometry(Part.Circle(V(15, 180, 0), V(0, 0, 1), 4.25), False)
sketch5.addGeometry(Part.Circle(V(45, 180, 0), V(0, 0, 1), 4.25), False)
sketch5.addGeometry(Part.Circle(V(75, 180, 0), V(0, 0, 1), 4.25), False)
sketch5.addGeometry(Part.Circle(V(105, 180, 0), V(0, 0, 1), 4.25), False)
sketch5.addGeometry(Part.Circle(V(-105, 180, 0), V(0, 0, 1), 4.25), False)
sketch5.addGeometry(Part.Circle(V(-75, 180, 0), V(0, 0, 1), 4.25), False)
sketch5.addGeometry(Part.Circle(V(-45, 180, 0), V(0, 0, 1), 4.25), False)
sketch5.addGeometry(Part.Circle(V(-15, 180, 0), V(0, 0, 1), 4.25), False)
sketch5.addGeometry(Part.Circle(V(205, -12.5, 0), V(0, 0, 1), 4.25), False)
sketch5.addGeometry(Part.Circle(V(205, -37.5, 0), V(0, 0, 1), 4.25), False)
sketch5.addGeometry(Part.Circle(V(205, -62.5, 0), V(0, 0, 1), 4.25), False)
sketch5.addGeometry(Part.Circle(V(205, -87.5, 0), V(0, 0, 1), 4.25), False)
sketch5.addGeometry(Part.Circle(V(205, 87.5, 0), V(0, 0, 1), 4.25), False)
sketch5.addGeometry(Part.Circle(V(205, 62.5, 0), V(0, 0, 1), 4.25), False)
sketch5.addGeometry(Part.Circle(V(205, 37.5, 0), V(0, 0, 1), 4.25), False)
sketch5.addGeometry(Part.Circle(V(205, 12.5, 0), V(0, 0, 1), 4.25), False)
sketch5.addGeometry(Part.Circle(V(-205, 12.5, 0), V(0, 0, 1), 4.25), False)
sketch5.addGeometry(Part.Circle(V(-205, 37.5, 0), V(0, 0, 1), 4.25), False)
sketch5.addGeometry(Part.Circle(V(-205, 62.5, 0), V(0, 0, 1), 4.25), False)
sketch5.addGeometry(Part.Circle(V(-205, 87.5, 0), V(0, 0, 1), 4.25), False)
sketch5.addGeometry(Part.Circle(V(-205, -87.5, 0), V(0, 0, 1), 4.25), False)
sketch5.addGeometry(Part.Circle(V(-205, -62.5, 0), V(0, 0, 1), 4.25), False)
sketch5.addGeometry(Part.Circle(V(-205, -37.5, 0), V(0, 0, 1), 4.25), False)
sketch5.addGeometry(Part.Circle(V(-205, -12.5, 0), V(0, 0, 1), 4.25), False)
sketch5.addConstraint(Sketcher.Constraint("Equal", 0, 1))
sketch5.addConstraint(Sketcher.Constraint("Equal", 1, 2))
sketch5.addConstraint(Sketcher.Constraint("Equal", 2, 3))
sketch5.addConstraint(Sketcher.Constraint("Equal", 3, 4))
sketch5.addConstraint(Sketcher.Constraint("Equal", 4, 5))
sketch5.addConstraint(Sketcher.Constraint("Equal", 5, 6))
sketch5.addConstraint(Sketcher.Constraint("Equal", 6, 7))
sketch5.addConstraint(Sketcher.Constraint("Equal", 7, 8))
sketch5.addConstraint(Sketcher.Constraint("Equal", 8, 9))
sketch5.addConstraint(Sketcher.Constraint("Equal", 9, 10))
sketch5.addConstraint(Sketcher.Constraint("Equal", 10, 11))
sketch5.addConstraint(Sketcher.Constraint("Equal", 11, 12))
sketch5.addConstraint(Sketcher.Constraint("Equal", 12, 13))
sketch5.addConstraint(Sketcher.Constraint("Equal", 13, 14))
sketch5.addConstraint(Sketcher.Constraint("Equal", 14, 15))
sketch5.addConstraint(Sketcher.Constraint("Equal", 15, 16))
sketch5.addConstraint(Sketcher.Constraint("Equal", 16, 17))
sketch5.addConstraint(Sketcher.Constraint("Equal", 17, 18))
sketch5.addConstraint(Sketcher.Constraint("Equal", 18, 19))
sketch5.addConstraint(Sketcher.Constraint("Equal", 19, 20))
sketch5.addConstraint(Sketcher.Constraint("Equal", 20, 21))
sketch5.addConstraint(Sketcher.Constraint("Equal", 21, 22))
sketch5.addConstraint(Sketcher.Constraint("Equal", 22, 23))
sketch5.addConstraint(Sketcher.Constraint("Equal", 23, 24))
sketch5.addConstraint(Sketcher.Constraint("Equal", 24, 25))
sketch5.addConstraint(Sketcher.Constraint("Equal", 25, 26))
sketch5.addConstraint(Sketcher.Constraint("Equal", 26, 27))
sketch5.addConstraint(Sketcher.Constraint("Equal", 27, 28))
sketch5.addConstraint(Sketcher.Constraint("Equal", 28, 29))
sketch5.addConstraint(Sketcher.Constraint("Equal", 29, 30))
sketch5.addConstraint(Sketcher.Constraint("Equal", 30, 31))
sketch5.addConstraint(Sketcher.Constraint("Symmetric", 0, 3, 8, 3, -1, 1))
sketch5.addConstraint(Sketcher.Constraint("Symmetric", 1, 3, 9, 3, -1, 1))
sketch5.addConstraint(Sketcher.Constraint("Symmetric", 2, 3, 10, 3, -1, 1))
sketch5.addConstraint(Sketcher.Constraint("Symmetric", 3, 3, 11, 3, -1, 1))
sketch5.addConstraint(Sketcher.Constraint("Symmetric", 4, 3, 12, 3, -1, 1))
sketch5.addConstraint(Sketcher.Constraint("Symmetric", 5, 3, 13, 3, -1, 1))
sketch5.addConstraint(Sketcher.Constraint("Symmetric", 6, 3, 14, 3, -1, 1))
sketch5.addConstraint(Sketcher.Constraint("Symmetric", 7, 3, 15, 3, -1, 1))
sketch5.addConstraint(Sketcher.Constraint("Symmetric", 16, 3, 24, 3, -1, 1))
sketch5.addConstraint(Sketcher.Constraint("Symmetric", 17, 3, 25, 3, -1, 1))
sketch5.addConstraint(Sketcher.Constraint("Symmetric", 18, 3, 26, 3, -1, 1))
sketch5.addConstraint(Sketcher.Constraint("Symmetric", 19, 3, 27, 3, -1, 1))
sketch5.addConstraint(Sketcher.Constraint("Symmetric", 20, 3, 28, 3, -1, 1))
sketch5.addConstraint(Sketcher.Constraint("Symmetric", 21, 3, 29, 3, -1, 1))
sketch5.addConstraint(Sketcher.Constraint("Symmetric", 22, 3, 30, 3, -1, 1))
sketch5.addConstraint(Sketcher.Constraint("Symmetric", 23, 3, 31, 3, -1, 1))
sketch5.addConstraint(Sketcher.Constraint("Symmetric", 3, 3, 4, 3, -2))
sketch5.addConstraint(Sketcher.Constraint("Symmetric", 2, 3, 5, 3, -2))
sketch5.addConstraint(Sketcher.Constraint("Symmetric", 1, 3, 6, 3, -2))
sketch5.addConstraint(Sketcher.Constraint("Symmetric", 0, 3, 7, 3, -2))
sketch5.addConstraint(Sketcher.Constraint("Symmetric", 23, 3, 24, 3, -2))
sketch5.addConstraint(Sketcher.Constraint("Symmetric", 22, 3, 25, 3, -2))
sketch5.addConstraint(Sketcher.Constraint("Symmetric", 21, 3, 26, 3, -2))
sketch5.addConstraint(Sketcher.Constraint("Symmetric", 20, 3, 27, 3, -2))
sketch5.addConstraint(Sketcher.Constraint("Horizontal", 0, 3, 1, 3))
sketch5.addConstraint(Sketcher.Constraint("Horizontal", 1, 3, 2, 3))
sketch5.addConstraint(Sketcher.Constraint("Horizontal", 2, 3, 3, 3))
sketch5.addConstraint(Sketcher.Constraint("Vertical", 16, 3, 17, 3))
sketch5.addConstraint(Sketcher.Constraint("Vertical", 17, 3, 18, 3))
sketch5.addConstraint(Sketcher.Constraint("Vertical", 18, 3, 19, 3))
sketch5.addConstraint(Sketcher.Constraint("Diameter", 0, 8.5))
sketch5.addConstraint(Sketcher.Constraint("DistanceX", 0, 3, -1, 1, 15.0))
sketch5.addConstraint(Sketcher.Constraint("DistanceY", 0, 3, -1, 1, 180.0))
sketch5.addConstraint(Sketcher.Constraint("DistanceX", 1, 3, -1, 1, 45.0))
sketch5.addConstraint(Sketcher.Constraint("DistanceX", 2, 3, -1, 1, 75.0))
sketch5.addConstraint(Sketcher.Constraint("DistanceX", 3, 3, -1, 1, 105.0))
sketch5.addConstraint(Sketcher.Constraint("DistanceX", -1, 1, 16, 3, 205.0))
sketch5.addConstraint(Sketcher.Constraint("DistanceY", 17, 3, 16, 3, 25.0))
sketch5.addConstraint(Sketcher.Constraint("DistanceY", 18, 3, 17, 3, 25.0))
sketch5.addConstraint(Sketcher.Constraint("DistanceY", 19, 3, 18, 3, 25.0))
sketch5.addConstraint(Sketcher.Constraint("DistanceY", 16, 3, 20, 3, 100.0))
sketch5.setExpression("Constraints[61]", "Params.sketch5_diameter")
pocket4 = body.newObject("PartDesign::Pocket", "Pocket003")
pocket4.Profile = sketch5
pocket4.setExpression("Length", "Params.pocket4_length")
pocket4.Reversed = True

doc.recompute()
